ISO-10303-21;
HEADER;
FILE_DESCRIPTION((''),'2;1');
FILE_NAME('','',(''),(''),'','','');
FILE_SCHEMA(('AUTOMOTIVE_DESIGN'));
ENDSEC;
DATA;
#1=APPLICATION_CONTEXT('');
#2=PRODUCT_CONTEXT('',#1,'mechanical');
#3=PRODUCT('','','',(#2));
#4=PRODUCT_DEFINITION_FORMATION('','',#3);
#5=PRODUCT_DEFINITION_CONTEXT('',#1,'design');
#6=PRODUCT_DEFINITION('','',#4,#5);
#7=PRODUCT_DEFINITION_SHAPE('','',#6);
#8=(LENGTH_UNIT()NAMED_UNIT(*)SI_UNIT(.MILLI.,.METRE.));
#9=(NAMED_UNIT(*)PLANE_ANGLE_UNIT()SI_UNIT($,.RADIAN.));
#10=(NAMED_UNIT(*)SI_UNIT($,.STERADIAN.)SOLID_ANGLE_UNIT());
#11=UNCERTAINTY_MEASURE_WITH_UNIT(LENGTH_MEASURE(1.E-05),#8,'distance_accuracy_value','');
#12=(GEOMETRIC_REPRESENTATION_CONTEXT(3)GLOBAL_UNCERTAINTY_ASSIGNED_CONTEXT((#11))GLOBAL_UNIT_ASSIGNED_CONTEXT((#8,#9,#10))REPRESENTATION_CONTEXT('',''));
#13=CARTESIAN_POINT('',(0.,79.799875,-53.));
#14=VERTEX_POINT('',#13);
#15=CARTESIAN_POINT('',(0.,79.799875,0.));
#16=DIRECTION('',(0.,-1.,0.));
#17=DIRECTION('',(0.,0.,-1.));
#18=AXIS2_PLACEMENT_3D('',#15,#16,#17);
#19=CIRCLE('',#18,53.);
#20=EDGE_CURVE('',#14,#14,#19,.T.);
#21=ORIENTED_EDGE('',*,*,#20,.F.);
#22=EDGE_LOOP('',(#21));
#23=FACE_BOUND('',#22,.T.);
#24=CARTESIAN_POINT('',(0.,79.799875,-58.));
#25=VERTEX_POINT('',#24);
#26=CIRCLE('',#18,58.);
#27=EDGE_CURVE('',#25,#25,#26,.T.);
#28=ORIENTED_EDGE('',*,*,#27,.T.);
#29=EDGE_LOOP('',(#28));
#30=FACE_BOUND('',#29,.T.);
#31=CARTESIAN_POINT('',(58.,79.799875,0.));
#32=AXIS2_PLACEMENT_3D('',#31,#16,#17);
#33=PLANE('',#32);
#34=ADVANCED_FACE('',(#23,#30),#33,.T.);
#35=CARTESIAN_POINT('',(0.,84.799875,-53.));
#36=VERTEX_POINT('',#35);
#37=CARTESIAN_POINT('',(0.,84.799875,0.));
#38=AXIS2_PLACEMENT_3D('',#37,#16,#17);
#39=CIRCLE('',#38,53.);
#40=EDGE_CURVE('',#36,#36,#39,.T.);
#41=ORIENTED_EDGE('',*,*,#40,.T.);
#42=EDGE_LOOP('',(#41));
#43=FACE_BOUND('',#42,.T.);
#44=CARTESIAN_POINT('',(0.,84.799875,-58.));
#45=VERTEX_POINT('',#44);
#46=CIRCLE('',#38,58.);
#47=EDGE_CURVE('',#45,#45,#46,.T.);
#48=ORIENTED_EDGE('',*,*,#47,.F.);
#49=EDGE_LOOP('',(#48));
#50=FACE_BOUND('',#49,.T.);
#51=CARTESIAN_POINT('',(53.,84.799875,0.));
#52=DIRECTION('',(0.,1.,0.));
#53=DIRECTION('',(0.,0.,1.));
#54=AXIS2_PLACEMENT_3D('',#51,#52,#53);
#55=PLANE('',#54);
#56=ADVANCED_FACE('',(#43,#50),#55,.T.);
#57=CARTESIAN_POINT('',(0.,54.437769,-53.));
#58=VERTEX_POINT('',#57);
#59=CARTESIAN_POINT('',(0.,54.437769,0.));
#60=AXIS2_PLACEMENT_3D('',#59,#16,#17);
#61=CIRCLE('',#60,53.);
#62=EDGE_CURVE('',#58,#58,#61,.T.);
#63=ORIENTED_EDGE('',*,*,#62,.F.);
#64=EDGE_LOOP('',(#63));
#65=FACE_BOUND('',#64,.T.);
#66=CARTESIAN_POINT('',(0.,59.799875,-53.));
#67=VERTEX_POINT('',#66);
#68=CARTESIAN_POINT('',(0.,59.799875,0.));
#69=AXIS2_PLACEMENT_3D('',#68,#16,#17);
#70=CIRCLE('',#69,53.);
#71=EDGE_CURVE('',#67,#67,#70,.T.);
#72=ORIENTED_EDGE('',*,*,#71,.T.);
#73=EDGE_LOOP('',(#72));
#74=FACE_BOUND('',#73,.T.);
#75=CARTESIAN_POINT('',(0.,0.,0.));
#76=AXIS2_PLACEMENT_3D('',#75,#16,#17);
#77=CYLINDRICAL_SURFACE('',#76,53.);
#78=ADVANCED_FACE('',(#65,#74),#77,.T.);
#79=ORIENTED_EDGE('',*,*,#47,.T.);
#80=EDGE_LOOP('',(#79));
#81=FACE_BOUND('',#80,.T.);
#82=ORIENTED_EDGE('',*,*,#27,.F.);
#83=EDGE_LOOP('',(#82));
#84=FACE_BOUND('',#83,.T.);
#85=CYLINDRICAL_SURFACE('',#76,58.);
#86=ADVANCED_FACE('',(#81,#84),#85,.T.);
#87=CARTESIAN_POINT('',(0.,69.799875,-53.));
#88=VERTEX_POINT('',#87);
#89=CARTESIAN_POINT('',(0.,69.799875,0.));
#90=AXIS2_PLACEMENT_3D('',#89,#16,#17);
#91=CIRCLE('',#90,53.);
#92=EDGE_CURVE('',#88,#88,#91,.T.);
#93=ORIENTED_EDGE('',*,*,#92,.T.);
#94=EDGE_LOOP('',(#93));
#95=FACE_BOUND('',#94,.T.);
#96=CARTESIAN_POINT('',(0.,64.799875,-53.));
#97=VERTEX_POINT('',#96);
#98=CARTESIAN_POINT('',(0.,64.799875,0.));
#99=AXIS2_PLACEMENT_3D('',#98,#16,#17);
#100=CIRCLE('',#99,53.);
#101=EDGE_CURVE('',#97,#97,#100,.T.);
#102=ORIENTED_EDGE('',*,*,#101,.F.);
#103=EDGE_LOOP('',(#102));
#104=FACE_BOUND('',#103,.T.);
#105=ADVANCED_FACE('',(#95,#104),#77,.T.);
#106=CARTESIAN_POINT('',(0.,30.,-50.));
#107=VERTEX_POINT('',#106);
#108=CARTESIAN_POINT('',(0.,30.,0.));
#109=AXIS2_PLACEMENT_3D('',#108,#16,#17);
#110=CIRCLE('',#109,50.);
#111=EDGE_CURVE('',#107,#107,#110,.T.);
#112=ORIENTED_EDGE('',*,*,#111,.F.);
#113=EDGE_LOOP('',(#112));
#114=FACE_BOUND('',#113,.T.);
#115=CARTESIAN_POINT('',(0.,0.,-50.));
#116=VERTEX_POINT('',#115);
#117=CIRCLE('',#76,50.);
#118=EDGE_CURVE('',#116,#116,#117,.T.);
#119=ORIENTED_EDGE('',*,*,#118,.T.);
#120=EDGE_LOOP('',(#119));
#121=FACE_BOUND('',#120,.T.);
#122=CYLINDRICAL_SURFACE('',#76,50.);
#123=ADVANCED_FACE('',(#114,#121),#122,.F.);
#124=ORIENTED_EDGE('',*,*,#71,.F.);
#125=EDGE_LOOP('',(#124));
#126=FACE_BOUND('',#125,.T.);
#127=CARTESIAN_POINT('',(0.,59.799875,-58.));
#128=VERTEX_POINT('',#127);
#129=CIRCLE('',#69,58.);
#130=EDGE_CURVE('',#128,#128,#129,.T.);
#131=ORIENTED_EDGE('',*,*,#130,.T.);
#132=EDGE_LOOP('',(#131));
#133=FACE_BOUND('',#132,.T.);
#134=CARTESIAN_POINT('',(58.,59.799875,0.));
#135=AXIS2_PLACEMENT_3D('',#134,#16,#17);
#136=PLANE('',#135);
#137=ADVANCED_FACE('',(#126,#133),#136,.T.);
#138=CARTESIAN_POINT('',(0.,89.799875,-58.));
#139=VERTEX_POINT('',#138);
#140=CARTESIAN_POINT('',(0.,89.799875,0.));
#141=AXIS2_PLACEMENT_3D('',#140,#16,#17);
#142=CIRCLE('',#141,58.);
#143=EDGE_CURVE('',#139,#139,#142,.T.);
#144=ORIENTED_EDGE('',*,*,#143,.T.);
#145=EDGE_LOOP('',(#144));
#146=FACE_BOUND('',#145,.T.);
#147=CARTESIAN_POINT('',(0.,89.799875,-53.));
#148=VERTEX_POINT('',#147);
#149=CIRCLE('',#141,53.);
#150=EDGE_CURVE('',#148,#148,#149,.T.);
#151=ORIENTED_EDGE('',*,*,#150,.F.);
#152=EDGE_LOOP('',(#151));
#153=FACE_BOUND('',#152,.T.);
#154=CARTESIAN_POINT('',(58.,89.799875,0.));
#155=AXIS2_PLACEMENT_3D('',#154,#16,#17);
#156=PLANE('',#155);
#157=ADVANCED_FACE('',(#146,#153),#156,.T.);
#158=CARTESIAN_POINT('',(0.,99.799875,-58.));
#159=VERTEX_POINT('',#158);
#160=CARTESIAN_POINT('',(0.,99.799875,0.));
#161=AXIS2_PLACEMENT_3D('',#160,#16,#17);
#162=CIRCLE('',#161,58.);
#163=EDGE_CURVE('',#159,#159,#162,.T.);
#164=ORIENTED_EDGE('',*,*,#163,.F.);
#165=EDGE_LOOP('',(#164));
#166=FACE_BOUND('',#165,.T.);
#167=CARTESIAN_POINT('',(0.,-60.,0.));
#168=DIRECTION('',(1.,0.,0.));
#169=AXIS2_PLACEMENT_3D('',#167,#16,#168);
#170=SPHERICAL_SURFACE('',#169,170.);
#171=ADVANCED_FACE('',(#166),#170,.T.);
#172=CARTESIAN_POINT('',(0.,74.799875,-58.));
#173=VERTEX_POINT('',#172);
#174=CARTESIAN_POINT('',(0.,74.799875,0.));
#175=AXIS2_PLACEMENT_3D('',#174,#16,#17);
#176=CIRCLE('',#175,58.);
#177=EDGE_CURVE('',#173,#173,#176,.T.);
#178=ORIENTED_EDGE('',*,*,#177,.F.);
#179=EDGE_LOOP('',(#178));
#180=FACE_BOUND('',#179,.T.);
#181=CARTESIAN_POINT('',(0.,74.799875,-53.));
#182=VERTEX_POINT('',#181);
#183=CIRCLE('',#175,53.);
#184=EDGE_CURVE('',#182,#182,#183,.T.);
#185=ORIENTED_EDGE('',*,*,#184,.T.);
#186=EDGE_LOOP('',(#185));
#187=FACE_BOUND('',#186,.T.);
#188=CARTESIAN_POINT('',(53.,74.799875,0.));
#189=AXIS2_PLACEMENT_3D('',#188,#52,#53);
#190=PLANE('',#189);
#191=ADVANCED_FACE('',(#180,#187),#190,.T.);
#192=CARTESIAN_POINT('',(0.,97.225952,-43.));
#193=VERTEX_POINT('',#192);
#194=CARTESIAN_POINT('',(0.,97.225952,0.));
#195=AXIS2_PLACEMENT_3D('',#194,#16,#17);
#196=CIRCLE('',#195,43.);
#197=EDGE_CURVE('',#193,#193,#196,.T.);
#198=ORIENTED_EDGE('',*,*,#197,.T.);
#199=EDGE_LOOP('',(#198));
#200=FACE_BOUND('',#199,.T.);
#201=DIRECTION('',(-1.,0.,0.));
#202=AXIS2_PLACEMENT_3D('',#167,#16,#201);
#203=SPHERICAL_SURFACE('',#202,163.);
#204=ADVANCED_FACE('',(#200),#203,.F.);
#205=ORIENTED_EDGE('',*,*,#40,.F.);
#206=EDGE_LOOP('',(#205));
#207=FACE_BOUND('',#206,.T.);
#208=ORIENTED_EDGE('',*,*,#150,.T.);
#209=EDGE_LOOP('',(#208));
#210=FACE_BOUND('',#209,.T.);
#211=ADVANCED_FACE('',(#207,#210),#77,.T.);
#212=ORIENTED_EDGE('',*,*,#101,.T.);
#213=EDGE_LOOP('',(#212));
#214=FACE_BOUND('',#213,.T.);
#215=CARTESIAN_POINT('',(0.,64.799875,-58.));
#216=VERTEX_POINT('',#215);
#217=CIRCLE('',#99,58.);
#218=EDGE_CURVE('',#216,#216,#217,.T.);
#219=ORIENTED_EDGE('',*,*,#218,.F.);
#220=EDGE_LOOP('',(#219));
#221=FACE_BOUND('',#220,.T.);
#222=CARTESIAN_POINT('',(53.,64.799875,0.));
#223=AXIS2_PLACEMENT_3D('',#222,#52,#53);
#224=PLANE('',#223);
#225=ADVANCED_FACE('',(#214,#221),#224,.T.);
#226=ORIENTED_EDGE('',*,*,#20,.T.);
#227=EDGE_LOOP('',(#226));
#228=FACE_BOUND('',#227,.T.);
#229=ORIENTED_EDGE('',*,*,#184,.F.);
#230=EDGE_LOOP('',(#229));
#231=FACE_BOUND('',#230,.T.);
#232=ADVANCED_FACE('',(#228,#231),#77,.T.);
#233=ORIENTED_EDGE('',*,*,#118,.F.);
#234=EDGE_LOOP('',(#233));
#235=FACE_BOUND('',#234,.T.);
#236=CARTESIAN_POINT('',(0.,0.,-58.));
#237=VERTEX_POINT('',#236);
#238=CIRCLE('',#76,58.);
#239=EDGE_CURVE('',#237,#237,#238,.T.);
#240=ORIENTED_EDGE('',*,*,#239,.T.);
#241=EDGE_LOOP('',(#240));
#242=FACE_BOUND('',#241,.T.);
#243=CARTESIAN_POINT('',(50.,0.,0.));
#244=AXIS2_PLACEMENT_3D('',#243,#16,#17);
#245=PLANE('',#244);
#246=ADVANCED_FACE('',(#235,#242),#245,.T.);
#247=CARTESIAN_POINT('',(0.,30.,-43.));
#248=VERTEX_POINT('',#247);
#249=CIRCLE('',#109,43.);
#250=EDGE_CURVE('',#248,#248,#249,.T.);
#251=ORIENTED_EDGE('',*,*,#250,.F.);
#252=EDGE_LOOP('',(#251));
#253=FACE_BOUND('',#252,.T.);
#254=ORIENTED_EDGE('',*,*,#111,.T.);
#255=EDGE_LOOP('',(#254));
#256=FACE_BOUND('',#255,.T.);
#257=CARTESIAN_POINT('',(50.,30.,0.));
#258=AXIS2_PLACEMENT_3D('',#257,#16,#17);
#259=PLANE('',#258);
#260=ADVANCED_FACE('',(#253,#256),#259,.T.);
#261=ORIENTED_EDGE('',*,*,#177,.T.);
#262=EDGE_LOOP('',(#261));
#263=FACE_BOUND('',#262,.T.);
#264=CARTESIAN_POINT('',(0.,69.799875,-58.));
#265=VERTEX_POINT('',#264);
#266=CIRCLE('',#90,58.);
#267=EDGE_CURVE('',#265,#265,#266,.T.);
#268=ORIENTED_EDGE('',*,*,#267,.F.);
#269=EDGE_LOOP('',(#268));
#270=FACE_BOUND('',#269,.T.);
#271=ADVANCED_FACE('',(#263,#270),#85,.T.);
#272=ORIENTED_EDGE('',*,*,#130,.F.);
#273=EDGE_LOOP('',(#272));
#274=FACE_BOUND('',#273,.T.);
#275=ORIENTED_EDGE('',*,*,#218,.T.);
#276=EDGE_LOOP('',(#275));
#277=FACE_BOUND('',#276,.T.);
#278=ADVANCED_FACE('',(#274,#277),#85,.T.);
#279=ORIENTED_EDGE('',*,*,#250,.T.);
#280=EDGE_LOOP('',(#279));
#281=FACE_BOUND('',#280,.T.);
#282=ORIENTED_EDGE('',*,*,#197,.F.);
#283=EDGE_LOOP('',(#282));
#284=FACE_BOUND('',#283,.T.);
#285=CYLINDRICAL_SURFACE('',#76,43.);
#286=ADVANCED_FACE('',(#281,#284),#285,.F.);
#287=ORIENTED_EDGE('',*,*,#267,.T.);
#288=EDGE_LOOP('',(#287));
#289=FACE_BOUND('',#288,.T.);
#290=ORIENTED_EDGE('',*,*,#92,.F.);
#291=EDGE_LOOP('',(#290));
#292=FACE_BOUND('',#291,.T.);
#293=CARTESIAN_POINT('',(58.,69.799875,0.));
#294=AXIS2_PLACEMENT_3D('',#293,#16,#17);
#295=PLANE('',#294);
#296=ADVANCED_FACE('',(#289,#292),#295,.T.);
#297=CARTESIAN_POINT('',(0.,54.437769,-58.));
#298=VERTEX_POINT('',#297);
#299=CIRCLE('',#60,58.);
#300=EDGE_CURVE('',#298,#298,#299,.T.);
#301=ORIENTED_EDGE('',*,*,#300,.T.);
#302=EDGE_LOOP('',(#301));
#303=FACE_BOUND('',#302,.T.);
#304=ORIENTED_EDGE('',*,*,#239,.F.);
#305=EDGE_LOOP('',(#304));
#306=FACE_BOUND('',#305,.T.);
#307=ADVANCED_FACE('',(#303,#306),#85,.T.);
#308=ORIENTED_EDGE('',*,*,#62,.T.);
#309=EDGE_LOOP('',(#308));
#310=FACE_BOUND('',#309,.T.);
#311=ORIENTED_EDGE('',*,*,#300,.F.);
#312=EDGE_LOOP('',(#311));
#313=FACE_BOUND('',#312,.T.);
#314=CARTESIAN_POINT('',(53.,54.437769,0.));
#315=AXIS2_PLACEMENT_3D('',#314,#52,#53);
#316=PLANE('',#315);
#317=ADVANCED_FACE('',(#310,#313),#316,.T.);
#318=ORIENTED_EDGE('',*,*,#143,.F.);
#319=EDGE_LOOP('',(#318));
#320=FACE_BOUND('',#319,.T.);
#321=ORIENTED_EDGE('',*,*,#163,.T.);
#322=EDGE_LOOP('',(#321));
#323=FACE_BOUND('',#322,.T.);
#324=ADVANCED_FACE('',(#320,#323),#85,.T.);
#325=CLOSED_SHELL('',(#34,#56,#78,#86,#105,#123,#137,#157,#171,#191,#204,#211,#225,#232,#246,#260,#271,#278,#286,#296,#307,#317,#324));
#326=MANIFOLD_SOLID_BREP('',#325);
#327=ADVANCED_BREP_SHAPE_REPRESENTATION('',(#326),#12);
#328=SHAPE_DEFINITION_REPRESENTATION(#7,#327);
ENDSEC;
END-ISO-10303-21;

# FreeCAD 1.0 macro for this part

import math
import FreeCAD as App
import Part
import Sketcher
from FreeCAD import Vector
Q = App.Units.Quantity

doc = App.newDocument("Part")
body = doc.addObject("PartDesign::Body", "Body")

sketch1 = body.newObject("Sketcher::SketchObject", "Sketch")
sketch1.AttachmentSupport = (doc.getObject("XY_Plane"), [""])
sketch1.MapMode = "FlatFace"
sketch1.addGeometry([
    Part.LineSegment(Vector(50, 0, 0), Vector(58, 0, 0)),
    Part.LineSegment(Vector(58, 0, 0), Vector(58, 54, 0)),
    Part.LineSegment(Vector(58, 54, 0), Vector(53, 54, 0)),
    Part.LineSegment(Vector(53, 54, 0), Vector(53, 60, 0)),
    Part.LineSegment(Vector(53, 60, 0), Vector(58, 60, 0)),
    Part.LineSegment(Vector(58, 60, 0), Vector(58, 65, 0)),
    Part.LineSegment(Vector(58, 65, 0), Vector(53, 65, 0)),
    Part.LineSegment(Vector(53, 65, 0), Vector(53, 70, 0)),
    Part.LineSegment(Vector(53, 70, 0), Vector(58, 70, 0)),
    Part.LineSegment(Vector(58, 70, 0), Vector(58, 75, 0)),
    Part.LineSegment(Vector(58, 75, 0), Vector(53, 75, 0)),
    Part.LineSegment(Vector(53, 75, 0), Vector(53, 80, 0)),
    Part.LineSegment(Vector(53, 80, 0), Vector(58, 80, 0)),
    Part.LineSegment(Vector(58, 80, 0), Vector(58, 85, 0)),
    Part.LineSegment(Vector(58, 85, 0), Vector(53, 85, 0)),
    Part.LineSegment(Vector(53, 85, 0), Vector(53, 90, 0)),
    Part.LineSegment(Vector(53, 90, 0), Vector(58, 90, 0)),
    Part.LineSegment(Vector(58, 90, 0), Vector(58, 100, 0)),
    Part.ArcOfCircle(Part.Circle(Vector(0, -60, 0), Vector(0, 0, 1), 170), math.radians(70.05), math.radians(90)),
    Part.LineSegment(Vector(0, 110, 0), Vector(0, 103, 0)),
    Part.ArcOfCircle(Part.Circle(Vector(0, -60, 0), Vector(0, 0, 1), 163), math.radians(74.7), math.radians(90)),
    Part.LineSegment(Vector(43, 97, 0), Vector(43, 30, 0)),
    Part.LineSegment(Vector(43, 30, 0), Vector(50, 30, 0)),
    Part.LineSegment(Vector(50, 30, 0), Vector(50, 0, 0)),
], False)
sketch1.addConstraint([
    Sketcher.Constraint("Coincident", 0, 2, 1, 1),
    Sketcher.Constraint("Coincident", 1, 2, 2, 1),
    Sketcher.Constraint("Coincident", 2, 2, 3, 1),
    Sketcher.Constraint("Coincident", 3, 2, 4, 1),
    Sketcher.Constraint("Coincident", 4, 2, 5, 1),
    Sketcher.Constraint("Coincident", 5, 2, 6, 1),
    Sketcher.Constraint("Coincident", 6, 2, 7, 1),
    Sketcher.Constraint("Coincident", 7, 2, 8, 1),
    Sketcher.Constraint("Coincident", 8, 2, 9, 1),
    Sketcher.Constraint("Coincident", 9, 2, 10, 1),
    Sketcher.Constraint("Coincident", 10, 2, 11, 1),
    Sketcher.Constraint("Coincident", 11, 2, 12, 1),
    Sketcher.Constraint("Coincident", 12, 2, 13, 1),
    Sketcher.Constraint("Coincident", 13, 2, 14, 1),
    Sketcher.Constraint("Coincident", 14, 2, 15, 1),
    Sketcher.Constraint("Coincident", 15, 2, 16, 1),
    Sketcher.Constraint("Coincident", 16, 2, 17, 1),
    Sketcher.Constraint("Coincident", 17, 2, 18, 1),
    Sketcher.Constraint("Coincident", 18, 2, 19, 1),
    Sketcher.Constraint("Coincident", 19, 2, 20, 2),
    Sketcher.Constraint("Coincident", 20, 1, 21, 1),
    Sketcher.Constraint("Coincident", 21, 2, 22, 1),
    Sketcher.Constraint("Coincident", 22, 2, 23, 1),
    Sketcher.Constraint("Coincident", 23, 2, 0, 1),
    Sketcher.Constraint("Horizontal", 0),
    Sketcher.Constraint("Vertical", 1),
    Sketcher.Constraint("Horizontal", 2),
    Sketcher.Constraint("Vertical", 3),
    Sketcher.Constraint("Horizontal", 4),
    Sketcher.Constraint("Vertical", 5),
    Sketcher.Constraint("Horizontal", 6),
    Sketcher.Constraint("Vertical", 7),
    Sketcher.Constraint("Horizontal", 8),
    Sketcher.Constraint("Vertical", 9),
    Sketcher.Constraint("Horizontal", 10),
    Sketcher.Constraint("Vertical", 11),
    Sketcher.Constraint("Horizontal", 12),
    Sketcher.Constraint("Vertical", 13),
    Sketcher.Constraint("Horizontal", 14),
    Sketcher.Constraint("Vertical", 15),
    Sketcher.Constraint("Horizontal", 16),
    Sketcher.Constraint("Vertical", 17),
    Sketcher.Constraint("Vertical", 19),
    Sketcher.Constraint("Vertical", 21),
    Sketcher.Constraint("Horizontal", 22),
    Sketcher.Constraint("Vertical", 23),
    Sketcher.Constraint("Coincident", 20, 3, 18, 3),
    Sketcher.Constraint("PointOnObject", 18, 3, -2),
    Sketcher.Constraint("PointOnObject", 0, 2, -1),
    Sketcher.Constraint("PointOnObject", 18, 2, -2),
    Sketcher.Constraint("Vertical", 1, 2, 4, 2),
    Sketcher.Constraint("Vertical", 3, 2, 6, 2),
    Sketcher.Constraint("Vertical", 5, 2, 8, 2),
    Sketcher.Constraint("Vertical", 7, 2, 10, 2),
    Sketcher.Constraint("Vertical", 9, 2, 12, 2),
    Sketcher.Constraint("Vertical", 11, 2, 14, 2),
    Sketcher.Constraint("Vertical", 13, 2, 16, 2),
    Sketcher.Constraint("Equal", 16, 5),
    Sketcher.Constraint("Equal", 5, 7),
    Sketcher.Constraint("Equal", 7, 9),
    Sketcher.Constraint("Equal", 9, 11),
    Sketcher.Constraint("Equal", 11, 13),
    Sketcher.Constraint("Equal", 13, 15),
    Sketcher.Constraint("Equal", 22, 19),
    Sketcher.Constraint("Radius", 18, Q("170 mm")),
    Sketcher.Constraint("Radius", 20, Q("163 mm")),
    Sketcher.Constraint("DistanceX", 0, 1, 0, 2, Q("8 mm")),
    Sketcher.Constraint("DistanceX", 2, 2, 2, 1, Q("5 mm")),
    Sketcher.Constraint("DistanceY", 17, 1, 17, 2, Q("10 mm")),
    Sketcher.Constraint("DistanceY", 23, 2, 23, 1, Q("30 mm")),
    Sketcher.Constraint("DistanceY", 18, 3, -1, 1, Q("60 mm")),
    Sketcher.Constraint("DistanceX", -1, 1, 0, 2, Q("58 mm")),
    Sketcher.Constraint("DistanceY", 1, 1, 1, 2, Q("54.437769 mm")),
])
revolution = body.newObject("PartDesign::Revolution", "Revolution")
revolution.Profile = sketch1
revolution.ReferenceAxis = (sketch1, ["V_Axis"])
revolution.Angle = 360

doc.recompute()
